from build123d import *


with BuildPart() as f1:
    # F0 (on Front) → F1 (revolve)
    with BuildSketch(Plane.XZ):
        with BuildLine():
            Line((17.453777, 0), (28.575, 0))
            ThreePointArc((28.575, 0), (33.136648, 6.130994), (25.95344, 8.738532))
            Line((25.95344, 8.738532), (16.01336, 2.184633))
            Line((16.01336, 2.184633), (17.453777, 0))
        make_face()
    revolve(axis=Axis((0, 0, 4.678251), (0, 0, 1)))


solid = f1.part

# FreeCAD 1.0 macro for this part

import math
import FreeCAD as App
import Part
import Sketcher
Q = App.Units.Quantity

doc = App.newDocument("Part")
body = doc.addObject("PartDesign::Body", "Body")

sketch1 = body.newObject("Sketcher::SketchObject", "Sketch")
sketch1.AttachmentSupport = (doc.getObject("XZ_Plane"), [""])
sketch1.MapMode = "FlatFace"
sketch1.addGeometry(Part.LineSegment(App.Vector(17.5, 0, 0), App.Vector(28.6, 0, 0)), False)
sketch1.addGeometry(Part.ArcOfCircle(Part.Circle(App.Vector(28.6, 4.8, 0), App.Vector(0, 0, 1), 4.8), math.radians(-90), math.radians(123)), False)
sketch1.addGeometry(Part.LineSegment(App.Vector(26, 8.7, 0), App.Vector(16, 2.2, 0)), False)
sketch1.addGeometry(Part.LineSegment(App.Vector(16, 2.2, 0), App.Vector(17.5, 0, 0)), False)
sketch1.addConstraint(Sketcher.Constraint("Tangent", 0, 2, 1, 1))
sketch1.addConstraint(Sketcher.Constraint("Tangent", 1, 2, 2, 1))
sketch1.addConstraint(Sketcher.Constraint("Coincident", 2, 2, 3, 1))
sketch1.addConstraint(Sketcher.Constraint("Coincident", 3, 2, 0, 1))
sketch1.addConstraint(Sketcher.Constraint("Horizontal", 0))
sketch1.addConstraint(Sketcher.Constraint("PointOnObject", 0, 2, -1))
sketch1.addConstraint(Sketcher.Constraint("Perpendicular", 2, 3))
sketch1.addConstraint(Sketcher.Constraint("Radius", 1, Q("0.1875 in")))
sketch1.addConstraint(Sketcher.Constraint("Distance", 2, Q("0.46875 in")))
sketch1.addConstraint(Sketcher.Constraint("DistanceX", -1, 1, 1, 3, Q("1.125 in")))
sketch1.addConstraint(Sketcher.Constraint("DistanceY", 2, 2, 1, 2, 6.553899))
revolution = body.newObject("PartDesign::Revolution", "Revolution")
revolution.Profile = sketch1
revolution.ReferenceAxis = (sketch1, ["V_Axis"])
revolution.Angle = 360

doc.recompute()
